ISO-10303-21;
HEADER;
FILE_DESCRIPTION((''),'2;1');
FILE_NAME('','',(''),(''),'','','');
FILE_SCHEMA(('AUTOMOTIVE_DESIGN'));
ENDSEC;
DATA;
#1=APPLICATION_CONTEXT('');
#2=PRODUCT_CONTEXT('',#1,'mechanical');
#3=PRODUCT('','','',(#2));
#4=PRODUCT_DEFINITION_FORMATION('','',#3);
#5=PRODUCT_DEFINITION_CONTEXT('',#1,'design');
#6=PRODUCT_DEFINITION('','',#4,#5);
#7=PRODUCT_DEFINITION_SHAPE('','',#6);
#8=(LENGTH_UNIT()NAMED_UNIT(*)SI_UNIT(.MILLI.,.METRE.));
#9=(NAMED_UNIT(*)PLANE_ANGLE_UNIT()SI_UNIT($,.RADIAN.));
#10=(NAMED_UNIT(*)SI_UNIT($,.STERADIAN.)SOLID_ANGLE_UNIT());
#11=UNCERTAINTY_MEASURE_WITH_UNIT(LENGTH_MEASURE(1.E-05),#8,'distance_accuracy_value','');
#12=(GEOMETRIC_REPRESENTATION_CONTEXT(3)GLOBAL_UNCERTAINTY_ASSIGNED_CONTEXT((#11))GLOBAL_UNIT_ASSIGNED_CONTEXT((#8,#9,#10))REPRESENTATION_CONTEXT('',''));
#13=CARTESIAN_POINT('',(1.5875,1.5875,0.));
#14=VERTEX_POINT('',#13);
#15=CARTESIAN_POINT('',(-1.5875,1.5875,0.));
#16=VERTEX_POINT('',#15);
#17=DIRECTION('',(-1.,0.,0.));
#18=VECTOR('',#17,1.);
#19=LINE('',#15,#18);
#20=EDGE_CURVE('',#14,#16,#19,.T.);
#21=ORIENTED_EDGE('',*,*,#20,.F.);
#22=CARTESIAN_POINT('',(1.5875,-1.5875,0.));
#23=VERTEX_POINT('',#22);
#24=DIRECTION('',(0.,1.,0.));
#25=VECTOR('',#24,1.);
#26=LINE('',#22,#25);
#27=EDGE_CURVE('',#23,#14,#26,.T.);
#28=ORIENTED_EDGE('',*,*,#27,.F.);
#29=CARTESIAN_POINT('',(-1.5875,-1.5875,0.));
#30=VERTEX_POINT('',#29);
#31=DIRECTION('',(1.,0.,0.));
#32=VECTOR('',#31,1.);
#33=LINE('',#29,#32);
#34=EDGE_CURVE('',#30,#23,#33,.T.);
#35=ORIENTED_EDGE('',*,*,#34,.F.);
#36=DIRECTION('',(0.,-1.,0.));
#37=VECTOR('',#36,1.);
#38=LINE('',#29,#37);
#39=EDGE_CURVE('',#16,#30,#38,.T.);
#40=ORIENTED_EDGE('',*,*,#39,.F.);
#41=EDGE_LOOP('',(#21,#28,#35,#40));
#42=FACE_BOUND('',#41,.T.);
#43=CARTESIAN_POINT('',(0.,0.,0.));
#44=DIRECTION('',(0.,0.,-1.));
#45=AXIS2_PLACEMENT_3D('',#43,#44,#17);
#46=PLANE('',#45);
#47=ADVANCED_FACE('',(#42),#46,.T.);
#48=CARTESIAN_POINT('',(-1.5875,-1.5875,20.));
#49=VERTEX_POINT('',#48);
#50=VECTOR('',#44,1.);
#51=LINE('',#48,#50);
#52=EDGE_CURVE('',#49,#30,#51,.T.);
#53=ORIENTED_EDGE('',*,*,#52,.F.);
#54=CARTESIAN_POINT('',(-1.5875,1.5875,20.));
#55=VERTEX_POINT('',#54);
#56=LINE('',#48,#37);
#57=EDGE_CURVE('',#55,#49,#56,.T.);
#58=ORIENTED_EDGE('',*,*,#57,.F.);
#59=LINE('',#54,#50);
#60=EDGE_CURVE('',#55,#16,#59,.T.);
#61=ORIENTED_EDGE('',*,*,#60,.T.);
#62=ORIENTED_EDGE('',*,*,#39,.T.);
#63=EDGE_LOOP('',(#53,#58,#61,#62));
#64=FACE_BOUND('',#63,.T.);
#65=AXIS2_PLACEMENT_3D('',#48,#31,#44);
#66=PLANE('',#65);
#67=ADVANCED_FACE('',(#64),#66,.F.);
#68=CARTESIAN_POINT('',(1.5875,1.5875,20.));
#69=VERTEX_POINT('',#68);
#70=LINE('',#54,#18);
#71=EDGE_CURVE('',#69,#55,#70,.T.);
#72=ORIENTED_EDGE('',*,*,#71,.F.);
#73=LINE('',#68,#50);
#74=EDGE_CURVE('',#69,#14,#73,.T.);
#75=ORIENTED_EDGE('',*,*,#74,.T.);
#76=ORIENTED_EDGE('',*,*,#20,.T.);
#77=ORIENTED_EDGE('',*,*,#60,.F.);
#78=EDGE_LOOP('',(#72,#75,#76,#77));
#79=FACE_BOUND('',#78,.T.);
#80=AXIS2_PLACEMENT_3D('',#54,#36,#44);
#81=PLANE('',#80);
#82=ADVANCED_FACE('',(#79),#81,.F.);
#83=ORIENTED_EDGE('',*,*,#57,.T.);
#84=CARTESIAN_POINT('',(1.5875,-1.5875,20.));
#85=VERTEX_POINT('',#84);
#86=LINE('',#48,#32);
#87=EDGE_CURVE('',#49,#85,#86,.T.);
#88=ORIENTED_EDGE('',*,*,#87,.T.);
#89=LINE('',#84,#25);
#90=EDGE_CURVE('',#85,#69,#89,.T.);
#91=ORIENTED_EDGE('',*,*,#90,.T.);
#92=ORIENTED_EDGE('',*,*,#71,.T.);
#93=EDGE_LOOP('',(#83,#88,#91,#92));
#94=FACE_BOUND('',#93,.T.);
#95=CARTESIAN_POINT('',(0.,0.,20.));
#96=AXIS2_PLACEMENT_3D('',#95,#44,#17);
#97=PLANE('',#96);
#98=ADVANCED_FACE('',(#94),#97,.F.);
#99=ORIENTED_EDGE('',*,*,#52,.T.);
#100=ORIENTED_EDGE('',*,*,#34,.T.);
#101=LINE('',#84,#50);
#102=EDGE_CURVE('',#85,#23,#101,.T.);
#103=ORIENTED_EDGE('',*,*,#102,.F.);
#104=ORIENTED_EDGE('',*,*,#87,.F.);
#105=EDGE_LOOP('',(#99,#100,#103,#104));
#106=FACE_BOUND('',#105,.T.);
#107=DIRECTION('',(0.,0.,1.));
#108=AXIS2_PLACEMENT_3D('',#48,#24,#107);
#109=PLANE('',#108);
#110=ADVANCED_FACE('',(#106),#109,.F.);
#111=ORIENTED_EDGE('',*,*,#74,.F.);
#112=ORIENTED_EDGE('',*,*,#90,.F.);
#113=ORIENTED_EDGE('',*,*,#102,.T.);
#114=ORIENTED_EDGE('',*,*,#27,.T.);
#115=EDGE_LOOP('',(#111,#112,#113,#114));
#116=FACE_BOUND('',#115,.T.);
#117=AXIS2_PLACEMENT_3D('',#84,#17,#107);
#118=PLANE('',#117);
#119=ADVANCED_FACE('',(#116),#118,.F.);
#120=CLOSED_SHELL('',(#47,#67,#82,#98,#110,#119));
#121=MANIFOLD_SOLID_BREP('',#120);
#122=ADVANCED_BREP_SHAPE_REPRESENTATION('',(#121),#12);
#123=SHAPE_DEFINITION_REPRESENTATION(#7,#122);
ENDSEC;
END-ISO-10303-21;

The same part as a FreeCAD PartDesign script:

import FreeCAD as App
import Part
import Sketcher
from FreeCAD import Vector


def add_polygon(sketch, points):
    """Adds a closed chain of lines whose ends are joined by coincident constraints."""
    first, n = sketch.GeometryCount, len(points)
    for a, b in zip(points, points[1:] + points[:1]):
        sketch.addGeometry(Part.LineSegment(App.Vector(*a, 0), App.Vector(*b, 0)), False)
    for i in range(n):
        sketch.addConstraint(Sketcher.Constraint("Coincident", first + i, 2, first + (i + 1) % n, 1))

doc = App.newDocument("Part")
body = doc.addObject("PartDesign::Body", "Body")

# Sketch on XY plane
sketch1 = body.newObject("Sketcher::SketchObject", "Sketch")
sketch1.AttachmentSupport = (doc.getObject("XY_Plane"), [""])
sketch1.MapMode = "FlatFace"
add_polygon(sketch1, [(-1.5875, 1.5875), (-1.5875, -1.5875), (1.5875, -1.5875), (1.5875, 1.5875)])  # lines 0-3
sketch1.addConstraint([
    Sketcher.Constraint("Vertical", 0),
    Sketcher.Constraint("Horizontal", 1),
    Sketcher.Constraint("Vertical", 2),
    Sketcher.Constraint("Horizontal", 3),
    Sketcher.Constraint("Symmetric", 0, 2, 2, 2, -1, 1),
    Sketcher.Constraint("Equal", 3, 0),
    Sketcher.Constraint("DistanceX", 1, 1, 1, 2, 3.175),
])
pad1 = body.newObject("PartDesign::Pad", "Pad")
pad1.Profile = sketch1
pad1.Length = 20

doc.recompute()
